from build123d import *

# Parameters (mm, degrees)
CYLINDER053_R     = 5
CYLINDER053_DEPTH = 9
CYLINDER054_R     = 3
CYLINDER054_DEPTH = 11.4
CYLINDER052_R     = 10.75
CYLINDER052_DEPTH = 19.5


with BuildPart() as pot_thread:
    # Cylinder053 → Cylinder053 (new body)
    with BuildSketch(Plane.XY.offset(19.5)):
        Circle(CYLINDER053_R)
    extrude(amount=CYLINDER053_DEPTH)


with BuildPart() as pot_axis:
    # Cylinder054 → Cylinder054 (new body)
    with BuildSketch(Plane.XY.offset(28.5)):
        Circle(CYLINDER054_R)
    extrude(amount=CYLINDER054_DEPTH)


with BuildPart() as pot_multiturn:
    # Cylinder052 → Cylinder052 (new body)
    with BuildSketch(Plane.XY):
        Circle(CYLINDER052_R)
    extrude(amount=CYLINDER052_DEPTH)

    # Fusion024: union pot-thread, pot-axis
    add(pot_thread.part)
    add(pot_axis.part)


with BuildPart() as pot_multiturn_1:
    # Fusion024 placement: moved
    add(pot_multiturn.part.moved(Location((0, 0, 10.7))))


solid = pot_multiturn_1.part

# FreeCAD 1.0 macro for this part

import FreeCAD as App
import Part
import Sketcher

V = App.Vector

doc = App.newDocument("Part")
body = doc.addObject("PartDesign::Body", "Body")

sketch1 = doc.addObject("Sketcher::SketchObject", "Sketch")
body.addObject(sketch1)
sketch1.AttachmentSupport = (doc.XY_Plane, [""])
sketch1.MapMode = "FlatFace"
sketch1.AttachmentOffset = App.Placement(V(0, 0, 19.5), App.Rotation())
sketch1.addGeometry(Part.Circle(V(0, 0, 0), V(0, 0, 1), 5), False)
sketch1.addConstraint(Sketcher.Constraint("Coincident", 0, 3, -1, 1))
sketch1.addConstraint(Sketcher.Constraint("Diameter", 0, 10.0))
pad1 = doc.addObject("PartDesign::Pad", "Pad")
body.addObject(pad1)
pad1.Profile = sketch1
pad1.Length = 9
body2 = doc.addObject("PartDesign::Body", "Body001")

sketch2 = doc.addObject("Sketcher::SketchObject", "Sketch001")
body2.addObject(sketch2)
sketch2.AttachmentSupport = (doc.getObject("XY_Plane001"), [""])
sketch2.MapMode = "FlatFace"
sketch2.AttachmentOffset = App.Placement(V(0, 0, 28.5), App.Rotation())
sketch2.addGeometry(Part.Circle(V(0, 0, 0), V(0, 0, 1), 3), False)
sketch2.addConstraint(Sketcher.Constraint("Coincident", 0, 3, -1, 1))
sketch2.addConstraint(Sketcher.Constraint("Diameter", 0, 6.0))
pad2 = doc.addObject("PartDesign::Pad", "Pad001")
body2.addObject(pad2)
pad2.Profile = sketch2
pad2.Length = 11.4
body3 = doc.addObject("PartDesign::Body", "Body002")

sketch3 = doc.addObject("Sketcher::SketchObject", "Sketch002")
body3.addObject(sketch3)
sketch3.AttachmentSupport = (doc.getObject("XY_Plane002"), [""])
sketch3.MapMode = "FlatFace"
sketch3.addGeometry(Part.Circle(V(0, 0, 0), V(0, 0, 1), 11), False)
sketch3.addConstraint(Sketcher.Constraint("Coincident", 0, 3, -1, 1))
sketch3.addConstraint(Sketcher.Constraint("Diameter", 0, 21.5))
pad3 = doc.addObject("PartDesign::Pad", "Pad002")
body3.addObject(pad3)
pad3.Profile = sketch3
pad3.Length = 19.5
doc.recompute()

boolean = doc.addObject("PartDesign::Boolean", "Boolean")
body3.addObject(boolean)
boolean.Type = "Fuse"
boolean.addObjects([body])
doc.recompute()

boolean2 = doc.addObject("PartDesign::Boolean", "Boolean001")
body3.addObject(boolean2)
boolean2.Type = "Fuse"
boolean2.addObjects([body2])
body4 = doc.addObject("PartDesign::Body", "Body003")
doc.recompute()

body3.Placement = App.Placement(V(0, 0, 10.7), App.Rotation(V(0, 0, 1), 0))
boolean3 = doc.addObject("PartDesign::Boolean", "Boolean002")
body4.addObject(boolean3)
boolean3.Type = "Fuse"
boolean3.addObjects([body3])

doc.recompute()
